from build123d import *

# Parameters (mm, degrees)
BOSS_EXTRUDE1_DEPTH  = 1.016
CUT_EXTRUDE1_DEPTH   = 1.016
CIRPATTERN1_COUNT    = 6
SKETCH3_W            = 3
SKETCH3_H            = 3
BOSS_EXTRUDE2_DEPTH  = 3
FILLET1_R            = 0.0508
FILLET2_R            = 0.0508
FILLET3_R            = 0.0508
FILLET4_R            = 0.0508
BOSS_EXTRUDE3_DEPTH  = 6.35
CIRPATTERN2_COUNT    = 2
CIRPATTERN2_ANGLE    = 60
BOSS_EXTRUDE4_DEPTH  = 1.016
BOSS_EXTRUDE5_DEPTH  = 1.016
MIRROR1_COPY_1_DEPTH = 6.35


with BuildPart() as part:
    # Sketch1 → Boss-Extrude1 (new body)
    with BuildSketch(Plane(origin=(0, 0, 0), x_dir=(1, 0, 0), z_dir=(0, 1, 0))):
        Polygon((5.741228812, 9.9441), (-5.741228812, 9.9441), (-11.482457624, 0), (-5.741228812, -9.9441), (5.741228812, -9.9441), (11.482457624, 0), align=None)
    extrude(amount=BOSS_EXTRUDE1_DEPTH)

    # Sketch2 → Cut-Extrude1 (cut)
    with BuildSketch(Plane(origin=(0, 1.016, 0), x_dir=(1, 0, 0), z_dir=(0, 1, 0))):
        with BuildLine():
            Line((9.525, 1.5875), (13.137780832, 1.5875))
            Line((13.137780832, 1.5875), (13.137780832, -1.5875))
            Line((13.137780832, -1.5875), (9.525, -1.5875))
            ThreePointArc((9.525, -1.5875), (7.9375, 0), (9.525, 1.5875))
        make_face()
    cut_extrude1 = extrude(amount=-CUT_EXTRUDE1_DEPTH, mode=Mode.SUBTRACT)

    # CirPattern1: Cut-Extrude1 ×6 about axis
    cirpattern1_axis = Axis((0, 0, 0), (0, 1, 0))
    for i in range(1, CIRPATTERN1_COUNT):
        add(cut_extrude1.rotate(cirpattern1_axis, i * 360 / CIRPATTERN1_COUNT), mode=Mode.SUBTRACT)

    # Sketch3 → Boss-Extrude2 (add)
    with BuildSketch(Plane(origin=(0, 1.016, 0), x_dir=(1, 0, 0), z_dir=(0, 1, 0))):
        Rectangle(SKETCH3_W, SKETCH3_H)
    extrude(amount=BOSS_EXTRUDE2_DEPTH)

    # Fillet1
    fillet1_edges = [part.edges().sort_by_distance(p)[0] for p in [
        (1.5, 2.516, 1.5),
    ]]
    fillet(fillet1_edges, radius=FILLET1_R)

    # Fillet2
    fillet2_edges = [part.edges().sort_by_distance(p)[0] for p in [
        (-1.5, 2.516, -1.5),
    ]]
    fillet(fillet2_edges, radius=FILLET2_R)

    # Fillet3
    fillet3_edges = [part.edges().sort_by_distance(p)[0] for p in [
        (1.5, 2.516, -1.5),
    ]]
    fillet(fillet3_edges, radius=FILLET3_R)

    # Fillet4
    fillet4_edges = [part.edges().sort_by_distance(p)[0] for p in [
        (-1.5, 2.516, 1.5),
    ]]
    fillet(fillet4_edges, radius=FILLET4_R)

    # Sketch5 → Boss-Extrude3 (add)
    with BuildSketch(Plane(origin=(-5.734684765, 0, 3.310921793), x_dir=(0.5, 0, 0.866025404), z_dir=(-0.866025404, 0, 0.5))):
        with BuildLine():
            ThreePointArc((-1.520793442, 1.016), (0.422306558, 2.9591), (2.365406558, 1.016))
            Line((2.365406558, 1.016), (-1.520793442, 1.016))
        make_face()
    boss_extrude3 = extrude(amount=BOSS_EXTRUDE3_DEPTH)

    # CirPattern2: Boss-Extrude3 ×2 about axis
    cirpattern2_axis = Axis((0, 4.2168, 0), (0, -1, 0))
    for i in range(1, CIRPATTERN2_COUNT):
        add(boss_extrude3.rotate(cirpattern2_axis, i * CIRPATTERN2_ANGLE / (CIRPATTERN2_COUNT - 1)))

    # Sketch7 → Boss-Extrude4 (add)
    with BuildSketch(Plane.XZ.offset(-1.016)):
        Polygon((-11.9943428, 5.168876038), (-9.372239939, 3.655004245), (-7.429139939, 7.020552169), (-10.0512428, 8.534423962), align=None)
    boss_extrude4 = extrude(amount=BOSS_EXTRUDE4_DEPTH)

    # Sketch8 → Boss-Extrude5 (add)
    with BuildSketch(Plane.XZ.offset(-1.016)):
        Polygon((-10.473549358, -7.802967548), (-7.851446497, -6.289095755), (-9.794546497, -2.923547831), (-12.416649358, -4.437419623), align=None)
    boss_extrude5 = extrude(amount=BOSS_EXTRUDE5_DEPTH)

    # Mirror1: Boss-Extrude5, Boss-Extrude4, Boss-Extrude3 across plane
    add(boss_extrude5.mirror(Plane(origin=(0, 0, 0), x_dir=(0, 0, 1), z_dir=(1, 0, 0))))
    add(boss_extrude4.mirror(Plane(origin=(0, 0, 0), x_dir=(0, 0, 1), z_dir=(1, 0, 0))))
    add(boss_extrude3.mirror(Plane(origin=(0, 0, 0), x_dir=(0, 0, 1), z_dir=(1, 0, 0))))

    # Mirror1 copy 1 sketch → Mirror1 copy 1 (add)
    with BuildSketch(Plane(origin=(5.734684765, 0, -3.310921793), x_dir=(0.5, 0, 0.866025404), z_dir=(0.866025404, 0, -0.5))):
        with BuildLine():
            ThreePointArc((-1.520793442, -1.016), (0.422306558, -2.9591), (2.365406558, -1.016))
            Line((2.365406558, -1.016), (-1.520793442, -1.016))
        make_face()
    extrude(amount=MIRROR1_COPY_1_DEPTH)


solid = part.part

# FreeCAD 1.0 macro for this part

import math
import FreeCAD as App
import Part
import Sketcher

V = App.Vector
Q = App.Units.Quantity


def edges_at(feature, points):
    """Names of the edges that pass closest to the given points."""
    edges = feature.Shape.Edges
    near = lambda p: min(range(len(edges)), key=lambda i: edges[i].distToShape(Part.Vertex(*p))[0])
    return sorted({f"Edge{near(p) + 1}" for p in points})


def add_polygon(sketch, points):
    """Adds a closed chain of lines whose ends are joined by coincident constraints."""
    first, n = sketch.GeometryCount, len(points)
    for a, b in zip(points, points[1:] + points[:1]):
        sketch.addGeometry(Part.LineSegment(App.Vector(*a, 0), App.Vector(*b, 0)), False)
    for i in range(n):
        sketch.addConstraint(Sketcher.Constraint("Coincident", first + i, 2, first + (i + 1) % n, 1))

doc = App.newDocument("Part")
params = doc.addObject("Spreadsheet::Sheet", "Params")
for row, (alias, value) in enumerate([
    ("pad1_length", "0.04 in"),
    ("sketch2_radius", "0.0625 in"),
    ("pocket1_length", "0.04 in"),
    ("pad2_length", "3 mm"),
    ("fillet_radius", "0.002 in"),
    ("fillet2_radius", "0.002 in"),
    ("fillet3_radius", "0.002 in"),
    ("fillet4_radius", "0.002 in"),
    ("pad3_length", "0.25 in"),
    ("sketch5_length", "0.153 in"),
    ("pad4_length", "0.04 in"),
    ("sketch6_length", "0.153 in"),
    ("pad5_length", "0.04 in"),
    ("pad6_length", "0.25 in"),
], start=1):
    params.set(f"A{row}", alias)
    params.set(f"B{row}", "=" + value)
    params.setAlias(f"B{row}", alias)

body = doc.addObject("PartDesign::Body", "Body")

# Sketch on XZ plane
sketch1 = body.newObject("Sketcher::SketchObject", "Sketch")
sketch1.AttachmentSupport = (doc.getObject("XZ_Plane"), [""])
sketch1.MapMode = "FlatFace"
add_polygon(sketch1, [(5.741229, -9.9441), (-5.741229, -9.9441), (-11.482458, 0), (-5.741229, 9.9441), (5.741229, 9.9441), (11.482458, 0)])  # lines 0-5
sketch1.addConstraint(Sketcher.Constraint("Horizontal", 0))
sketch1.addConstraint(Sketcher.Constraint("Horizontal", 3))
sketch1.addConstraint(Sketcher.Constraint("Symmetric", 0, 2, 3, 2, -1, 1))
sketch1.addConstraint(Sketcher.Constraint("Symmetric", 1, 2, 4, 2, -1, 1))
sketch1.addConstraint(Sketcher.Constraint("PointOnObject", 1, 2, -1))
sketch1.addConstraint(Sketcher.Constraint("Parallel", 2, 5))
sketch1.addConstraint(Sketcher.Constraint("Vertical", 0, 2, 2, 2))
sketch1.addConstraint(Sketcher.Constraint("Angle", 1, Q("120 deg")))
sketch1.addConstraint(Sketcher.Constraint("DistanceY", 0, 2, 2, 2, Q("0.783 in")))
sketch1.addConstraint(Sketcher.Constraint("DistanceX", 0, 2, 0, 1, 11.482458))
pad1 = body.newObject("PartDesign::Pad", "Pad")
pad1.Profile = sketch1
pad1.setExpression("Length", "Params.pad1_length")
pad1.Reversed = True

# Sketch on XZ plane
sketch2 = body.newObject("Sketcher::SketchObject", "Sketch001")
sketch2.AttachmentSupport = (doc.getObject("XZ_Plane"), [""])
sketch2.MapMode = "FlatFace"
sketch2.AttachmentOffset = App.Placement(V(0, 0, -0.04 * 25.4), App.Rotation())
sketch2.addGeometry(Part.LineSegment(V(13.137781, -1.5875, 0), V(9.525, -1.5875, 0)), False)
sketch2.addGeometry(Part.ArcOfCircle(Part.Circle(V(9.525, 0, 0), V(0, 0, 1), 1.5875), math.radians(90), math.radians(270)), False)
sketch2.addGeometry(Part.LineSegment(V(9.525, 1.5875, 0), V(13.137781, 1.5875, 0)), False)
sketch2.addGeometry(Part.LineSegment(V(13.137781, 1.5875, 0), V(13.137781, -1.5875, 0)), False)
sketch2.addConstraint(Sketcher.Constraint("Tangent", 0, 2, 1, 2))
sketch2.addConstraint(Sketcher.Constraint("Tangent", 1, 1, 2, 1))
sketch2.addConstraint(Sketcher.Constraint("Coincident", 2, 2, 3, 1))
sketch2.addConstraint(Sketcher.Constraint("Coincident", 3, 2, 0, 1))
sketch2.addConstraint(Sketcher.Constraint("Horizontal", 0))
sketch2.addConstraint(Sketcher.Constraint("Horizontal", 2))
sketch2.addConstraint(Sketcher.Constraint("Vertical", 3))
sketch2.addConstraint(Sketcher.Constraint("PointOnObject", 1, 3, -1))
sketch2.addConstraint(Sketcher.Constraint("Radius", 1, Q("0.0625 in")))
sketch2.addConstraint(Sketcher.Constraint("DistanceX", -1, 1, 1, 3, Q("0.375 in")))
sketch2.addConstraint(Sketcher.Constraint("DistanceX", 0, 2, 0, 1, 3.612781))
sketch2.setExpression("Constraints[8]", "Params.sketch2_radius")
pocket1 = body.newObject("PartDesign::Pocket", "Pocket")
pocket1.Profile = sketch2
pocket1.setExpression("Length", "Params.pocket1_length")
pocket1.Reversed = True
doc.recompute()

polarpattern = body.newObject("PartDesign::PolarPattern", "PolarPattern")
polarpattern.Originals = [pocket1]
polarpattern.Axis = (doc.getObject("Y_Axis"), [""])
polarpattern.Angle = 360
polarpattern.Occurrences = 6
body.Tip = polarpattern

# Sketch on XZ plane
sketch3 = body.newObject("Sketcher::SketchObject", "Sketch002")
sketch3.AttachmentSupport = (doc.getObject("XZ_Plane"), [""])
sketch3.MapMode = "FlatFace"
sketch3.AttachmentOffset = App.Placement(V(0, 0, -0.04 * 25.4), App.Rotation())
add_polygon(sketch3, [(-1.5, -1.5), (-1.5, 1.5), (1.5, 1.5), (1.5, -1.5)])  # lines 0-3
sketch3.addConstraint(Sketcher.Constraint("Vertical", 0))
sketch3.addConstraint(Sketcher.Constraint("Horizontal", 1))
sketch3.addConstraint(Sketcher.Constraint("Vertical", 2))
sketch3.addConstraint(Sketcher.Constraint("Horizontal", 3))
sketch3.addConstraint(Sketcher.Constraint("Symmetric", 0, 2, 2, 2, -1, 1))
sketch3.addConstraint(Sketcher.Constraint("Equal", 3, 0))
sketch3.addConstraint(Sketcher.Constraint("DistanceX", 1, 1, 1, 2, 3.0))
pad2 = body.newObject("PartDesign::Pad", "Pad001")
pad2.Profile = sketch3
pad2.setExpression("Length", "Params.pad2_length")
pad2.Reversed = True
doc.recompute()

fillet = body.newObject("PartDesign::Fillet", "Fillet")
fillet.Base = (pad2, edges_at(pad2, [(1.5, 2.516, 1.5)]))
fillet.setExpression("Radius", "Params.fillet_radius")
doc.recompute()

fillet2 = body.newObject("PartDesign::Fillet", "Fillet001")
fillet2.Base = (fillet, edges_at(fillet, [(-1.5, 2.516, -1.5)]))
fillet2.setExpression("Radius", "Params.fillet2_radius")
doc.recompute()

fillet3 = body.newObject("PartDesign::Fillet", "Fillet002")
fillet3.Base = (fillet2, edges_at(fillet2, [(1.5, 2.516, -1.5)]))
fillet3.setExpression("Radius", "Params.fillet3_radius")
doc.recompute()

fillet4 = body.newObject("PartDesign::Fillet", "Fillet003")
fillet4.Base = (fillet3, edges_at(fillet3, [(-1.5, 2.516, 1.5)]))
fillet4.setExpression("Radius", "Params.fillet4_radius")

# Sketch on an angled plane
sketch4 = body.newObject("Sketcher::SketchObject", "Sketch003")
sketch4.Placement = App.Placement(V(-5.734685, 0, 3.310922), App.Rotation(V(0.5, 0, 0.866025404), V(0, 1, 0), V(-0.866025404, 0, 0.5), "ZXY"))
sketch4.addGeometry(Part.ArcOfCircle(Part.Circle(V(0.422307, 1.016, 0), V(0, 0, 1), 1.9431), math.radians(0), math.radians(180)), False)
sketch4.addGeometry(Part.LineSegment(V(-1.520793, 1.016, 0), V(2.365407, 1.016, 0)), False)
sketch4.addConstraint(Sketcher.Constraint("Coincident", 0, 1, 1, 2))
sketch4.addConstraint(Sketcher.Constraint("Coincident", 1, 1, 0, 2))
sketch4.addConstraint(Sketcher.Constraint("Horizontal", 1))
sketch4.addConstraint(Sketcher.Constraint("Radius", 0, Q("0.0765 in")))
sketch4.addConstraint(Sketcher.Constraint("DistanceY", -1, 1, 0, 3, Q("0.04 in")))
sketch4.addConstraint(Sketcher.Constraint("DistanceY", -1, 1, 0, 1, Q("0.04 in")))
sketch4.addConstraint(Sketcher.Constraint("DistanceX", -1, 1, 0, 3, 0.422307))
pad3 = body.newObject("PartDesign::Pad", "Pad002")
pad3.Profile = sketch4
pad3.setExpression("Length", "Params.pad3_length")
doc.recompute()

polarpattern2 = body.newObject("PartDesign::PolarPattern", "PolarPattern001")
polarpattern2.Originals = [pad3]
polarpattern2.Axis = (doc.getObject("Y_Axis"), [""])
polarpattern2.Angle = 60
polarpattern2.Occurrences = 2
polarpattern2.Reversed = True
body.Tip = polarpattern2

# Sketch on XZ plane
sketch5 = body.newObject("Sketcher::SketchObject", "Sketch004")
sketch5.AttachmentSupport = (doc.getObject("XZ_Plane"), [""])
sketch5.MapMode = "FlatFace"
sketch5.AttachmentOffset = App.Placement(V(0, 0, -0.04 * 25.4), App.Rotation())
add_polygon(sketch5, [(-11.994343, 5.168876), (-9.37224, 3.655004), (-7.42914, 7.020552), (-10.051243, 8.534424)])  # lines 0-3
sketch5.addConstraint(Sketcher.Constraint("Perpendicular", 0, 1))
sketch5.addConstraint(Sketcher.Constraint("Perpendicular", 1, 2))
sketch5.addConstraint(Sketcher.Constraint("Perpendicular", 2, 3))
sketch5.addConstraint(Sketcher.Constraint("Angle", 0, Q("-30 deg")))
sketch5.addConstraint(Sketcher.Constraint("Distance", 1, Q("0.153 in")))
sketch5.addConstraint(Sketcher.Constraint("DistanceX", 0, 2, -1, 1, 9.37224))
sketch5.addConstraint(Sketcher.Constraint("DistanceY", 1, 2, 2, 2, 1.513872))
sketch5.addConstraint(Sketcher.Constraint("DistanceY", -1, 1, 0, 2, 3.655004))
sketch5.setExpression("Constraints[8]", "Params.sketch5_length")
pad4 = body.newObject("PartDesign::Pad", "Pad003")
pad4.Profile = sketch5
pad4.setExpression("Length", "Params.pad4_length")

# Sketch on XZ plane
sketch6 = body.newObject("Sketcher::SketchObject", "Sketch005")
sketch6.AttachmentSupport = (doc.getObject("XZ_Plane"), [""])
sketch6.MapMode = "FlatFace"
sketch6.AttachmentOffset = App.Placement(V(0, 0, -0.04 * 25.4), App.Rotation())
add_polygon(sketch6, [(-10.473549, -7.802968), (-7.851446, -6.289096), (-9.794546, -2.923548), (-12.416649, -4.43742)])  # lines 0-3
sketch6.addConstraint(Sketcher.Constraint("Perpendicular", 0, 1))
sketch6.addConstraint(Sketcher.Constraint("Perpendicular", 1, 2))
sketch6.addConstraint(Sketcher.Constraint("Perpendicular", 2, 3))
sketch6.addConstraint(Sketcher.Constraint("Angle", 0, Q("30 deg")))
sketch6.addConstraint(Sketcher.Constraint("Distance", 1, Q("0.153 in")))
sketch6.addConstraint(Sketcher.Constraint("DistanceX", 2, 2, -1, 1, 12.416649))
sketch6.addConstraint(Sketcher.Constraint("DistanceY", 2, 2, -1, 1, 4.43742))
sketch6.addConstraint(Sketcher.Constraint("DistanceY", 2, 2, 1, 2, 1.513872))
sketch6.setExpression("Constraints[8]", "Params.sketch6_length")
pad5 = body.newObject("PartDesign::Pad", "Pad004")
pad5.Profile = sketch6
pad5.setExpression("Length", "Params.pad5_length")
doc.recompute()

mirrored = body.newObject("PartDesign::Mirrored", "Mirrored")
mirrored.Originals = [pad5, pad4, pad3]
mirrored.MirrorPlane = (doc.getObject("YZ_Plane"), [""])
body.Tip = mirrored

# Sketch on an angled plane
sketch7 = body.newObject("Sketcher::SketchObject", "Sketch006")
sketch7.Placement = App.Placement(V(5.734685, 0, -3.310922), App.Rotation(V(0.5, 0, 0.866025404), V(0, -1, 0), V(0.866025404, 0, -0.5), "ZXY"))
sketch7.addGeometry(Part.ArcOfCircle(Part.Circle(V(0.422307, -1.016, 0), V(0, 0, 1), 1.9431), math.radians(180), math.radians(360)), False)
sketch7.addGeometry(Part.LineSegment(V(2.365407, -1.016, 0), V(-1.520793, -1.016, 0)), False)
sketch7.addConstraint(Sketcher.Constraint("Coincident", 0, 1, 1, 2))
sketch7.addConstraint(Sketcher.Constraint("Coincident", 1, 1, 0, 2))
sketch7.addConstraint(Sketcher.Constraint("Horizontal", 1))
sketch7.addConstraint(Sketcher.Constraint("Radius", 0, Q("0.0765 in")))
sketch7.addConstraint(Sketcher.Constraint("DistanceY", 0, 3, -1, 1, Q("0.04 in")))
sketch7.addConstraint(Sketcher.Constraint("DistanceY", 0, 1, -1, 1, Q("0.04 in")))
sketch7.addConstraint(Sketcher.Constraint("DistanceX", -1, 1, 0, 3, 0.422307))
pad6 = body.newObject("PartDesign::Pad", "Pad005")
pad6.Profile = sketch7
pad6.setExpression("Length", "Params.pad6_length")

doc.recompute()
